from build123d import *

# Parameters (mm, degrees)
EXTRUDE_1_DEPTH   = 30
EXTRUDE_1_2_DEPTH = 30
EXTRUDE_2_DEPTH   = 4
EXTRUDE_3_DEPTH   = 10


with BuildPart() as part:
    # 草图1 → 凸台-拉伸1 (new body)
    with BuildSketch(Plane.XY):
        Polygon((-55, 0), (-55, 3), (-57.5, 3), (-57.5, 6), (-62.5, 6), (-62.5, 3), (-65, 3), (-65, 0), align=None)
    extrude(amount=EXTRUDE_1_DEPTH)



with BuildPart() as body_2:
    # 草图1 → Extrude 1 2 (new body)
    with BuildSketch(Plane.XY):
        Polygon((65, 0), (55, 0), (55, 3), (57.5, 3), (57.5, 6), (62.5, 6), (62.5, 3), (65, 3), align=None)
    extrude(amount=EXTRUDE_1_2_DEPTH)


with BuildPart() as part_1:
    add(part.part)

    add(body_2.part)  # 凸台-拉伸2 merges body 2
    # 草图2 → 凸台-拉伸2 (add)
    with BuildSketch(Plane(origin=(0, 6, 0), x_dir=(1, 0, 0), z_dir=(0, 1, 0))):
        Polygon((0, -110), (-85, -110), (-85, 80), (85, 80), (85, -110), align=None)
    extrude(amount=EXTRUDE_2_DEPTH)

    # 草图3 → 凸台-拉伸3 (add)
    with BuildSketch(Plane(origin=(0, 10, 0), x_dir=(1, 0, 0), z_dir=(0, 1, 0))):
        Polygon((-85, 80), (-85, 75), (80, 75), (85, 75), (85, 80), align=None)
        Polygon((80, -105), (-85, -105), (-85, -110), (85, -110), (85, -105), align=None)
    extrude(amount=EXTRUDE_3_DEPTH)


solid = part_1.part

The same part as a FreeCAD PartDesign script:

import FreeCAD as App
import Part
import Sketcher

V = App.Vector
Q = App.Units.Quantity


def add_polygon(sketch, points):
    """Adds a closed chain of lines whose ends are joined by coincident constraints."""
    first, n = sketch.GeometryCount, len(points)
    for a, b in zip(points, points[1:] + points[:1]):
        sketch.addGeometry(Part.LineSegment(App.Vector(*a, 0), App.Vector(*b, 0)), False)
    for i in range(n):
        sketch.addConstraint(Sketcher.Constraint("Coincident", first + i, 2, first + (i + 1) % n, 1))

doc = App.newDocument("Part")
body = doc.addObject("PartDesign::Body", "Body")

sketch1 = doc.addObject("Sketcher::SketchObject", "Sketch")
body.addObject(sketch1)
sketch1.AttachmentSupport = (doc.XY_Plane, [""])
sketch1.MapMode = "FlatFace"
add_polygon(sketch1, [(-55, 0), (-55, 3), (-57.5, 3), (-57.5, 6), (-62.5, 6), (-62.5, 3), (-65, 3), (-65, 0)])
sketch1.addConstraint([
    Sketcher.Constraint("Vertical", 0),
    Sketcher.Constraint("Horizontal", 1),
    Sketcher.Constraint("Vertical", 2),
    Sketcher.Constraint("Horizontal", 3),
    Sketcher.Constraint("Vertical", 4),
    Sketcher.Constraint("Horizontal", 5),
    Sketcher.Constraint("Vertical", 6),
    Sketcher.Constraint("Horizontal", 7),
    Sketcher.Constraint("PointOnObject", 6, 2, -1),
    Sketcher.Constraint("Horizontal", 1, 2, 4, 2),
    Sketcher.Constraint("Equal", 1, 5),
    Sketcher.Constraint("Equal", 0, 2),
    Sketcher.Constraint("DistanceX", 3, 2, 3, 1, Q("5 mm")),
    Sketcher.Constraint("DistanceX", 7, 1, 7, 2, Q("10 mm")),
    Sketcher.Constraint("DistanceY", 0, 1, 0, 2, Q("3 mm")),
    Sketcher.Constraint("DistanceX", 0, 2, -1, 1, Q("55 mm")),
])
pad1 = doc.addObject("PartDesign::Pad", "Pad")
body.addObject(pad1)
pad1.Profile = sketch1
pad1.Length = 30
body2 = doc.addObject("PartDesign::Body", "Body001")

sketch2 = doc.addObject("Sketcher::SketchObject", "Sketch001")
body2.addObject(sketch2)
sketch2.AttachmentSupport = (doc.getObject("XY_Plane001"), [""])
sketch2.MapMode = "FlatFace"
add_polygon(sketch2, [(55, 0), (65, 0), (65, 3), (62.5, 3), (62.5, 6), (57.5, 6), (57.5, 3), (55, 3)])
sketch2.addConstraint([
    Sketcher.Constraint("Horizontal", 0),
    Sketcher.Constraint("Vertical", 1),
    Sketcher.Constraint("Horizontal", 2),
    Sketcher.Constraint("Vertical", 3),
    Sketcher.Constraint("Horizontal", 4),
    Sketcher.Constraint("Vertical", 5),
    Sketcher.Constraint("Horizontal", 6),
    Sketcher.Constraint("Vertical", 7),
    Sketcher.Constraint("PointOnObject", 0, 2, -1),
    Sketcher.Constraint("Horizontal", 2, 2, 5, 2),
    Sketcher.Constraint("Equal", 2, 6),
    Sketcher.Constraint("Equal", 1, 3),
    Sketcher.Constraint("DistanceX", 0, 1, 0, 2, Q("10 mm")),
    Sketcher.Constraint("DistanceX", 4, 2, 4, 1, Q("5 mm")),
    Sketcher.Constraint("DistanceY", 1, 1, 1, 2, Q("3 mm")),
    Sketcher.Constraint("DistanceX", -1, 1, 0, 2, Q("65 mm")),
])
pad2 = doc.addObject("PartDesign::Pad", "Pad001")
body2.addObject(pad2)
pad2.Profile = sketch2
pad2.Length = 30
body.AllowCompound = True
doc.recompute()

boolean = doc.addObject("PartDesign::Boolean", "Boolean")
body.addObject(boolean)
boolean.Type = "Fuse"
boolean.addObjects([body2])

sketch3 = doc.addObject("Sketcher::SketchObject", "Sketch002")
body.addObject(sketch3)
sketch3.AttachmentSupport = (doc.XZ_Plane, [""])
sketch3.MapMode = "FlatFace"
sketch3.AttachmentOffset = App.Placement(V(0, 0, -6), App.Rotation())
add_polygon(sketch3, [(-85, 110), (85, 110), (85, -80), (-85, -80)])
sketch3.addConstraint([
    Sketcher.Constraint("Horizontal", 0),
    Sketcher.Constraint("Vertical", 1),
    Sketcher.Constraint("Horizontal", 2),
    Sketcher.Constraint("Vertical", 3),
    Sketcher.Constraint("DistanceX", 0, 1, 0, 2, Q("170 mm")),
    Sketcher.Constraint("DistanceY", 1, 2, 1, 1, Q("190 mm")),
    Sketcher.Constraint("DistanceX", -1, 1, 0, 2, Q("85 mm")),
    Sketcher.Constraint("DistanceY", -1, 1, 0, 2, Q("110 mm")),
])
pad3 = doc.addObject("PartDesign::Pad", "Pad002")
body.addObject(pad3)
pad3.Profile = sketch3
pad3.Length = 4
pad3.Reversed = True

sketch4 = doc.addObject("Sketcher::SketchObject", "Sketch003")
body.addObject(sketch4)
sketch4.AttachmentSupport = (doc.XZ_Plane, [""])
sketch4.MapMode = "FlatFace"
sketch4.AttachmentOffset = App.Placement(V(0, 0, -10), App.Rotation())
add_polygon(sketch4, [(-85, -80), (-85, -75), (85, -75), (85, -80)])
add_polygon(sketch4, [(-85, 105), (-85, 110), (85, 110), (85, 105)])
sketch4.addConstraint([
    Sketcher.Constraint("Vertical", 0),
    Sketcher.Constraint("Horizontal", 1),
    Sketcher.Constraint("Vertical", 2),
    Sketcher.Constraint("Horizontal", 3),
    Sketcher.Constraint("Vertical", 4),
    Sketcher.Constraint("Horizontal", 5),
    Sketcher.Constraint("Vertical", 6),
    Sketcher.Constraint("Horizontal", 7),
    Sketcher.Constraint("Vertical", 3, 2, 4, 2),
    Sketcher.Constraint("Vertical", 2, 2, 5, 2),
    Sketcher.Constraint("Equal", 2, 4),
    Sketcher.Constraint("DistanceX", 1, 1, 1, 2, Q("170 mm")),
    Sketcher.Constraint("DistanceY", 0, 1, 0, 2, Q("5 mm")),
    Sketcher.Constraint("DistanceX", 0, 2, -1, 1, Q("85 mm")),
    Sketcher.Constraint("DistanceY", 0, 2, -1, 1, Q("75 mm")),
    Sketcher.Constraint("DistanceY", -1, 1, 4, 2, Q("110 mm")),
])
pad4 = doc.addObject("PartDesign::Pad", "Pad003")
body.addObject(pad4)
pad4.Profile = sketch4
pad4.Length = 10
pad4.Reversed = True

doc.recompute()
